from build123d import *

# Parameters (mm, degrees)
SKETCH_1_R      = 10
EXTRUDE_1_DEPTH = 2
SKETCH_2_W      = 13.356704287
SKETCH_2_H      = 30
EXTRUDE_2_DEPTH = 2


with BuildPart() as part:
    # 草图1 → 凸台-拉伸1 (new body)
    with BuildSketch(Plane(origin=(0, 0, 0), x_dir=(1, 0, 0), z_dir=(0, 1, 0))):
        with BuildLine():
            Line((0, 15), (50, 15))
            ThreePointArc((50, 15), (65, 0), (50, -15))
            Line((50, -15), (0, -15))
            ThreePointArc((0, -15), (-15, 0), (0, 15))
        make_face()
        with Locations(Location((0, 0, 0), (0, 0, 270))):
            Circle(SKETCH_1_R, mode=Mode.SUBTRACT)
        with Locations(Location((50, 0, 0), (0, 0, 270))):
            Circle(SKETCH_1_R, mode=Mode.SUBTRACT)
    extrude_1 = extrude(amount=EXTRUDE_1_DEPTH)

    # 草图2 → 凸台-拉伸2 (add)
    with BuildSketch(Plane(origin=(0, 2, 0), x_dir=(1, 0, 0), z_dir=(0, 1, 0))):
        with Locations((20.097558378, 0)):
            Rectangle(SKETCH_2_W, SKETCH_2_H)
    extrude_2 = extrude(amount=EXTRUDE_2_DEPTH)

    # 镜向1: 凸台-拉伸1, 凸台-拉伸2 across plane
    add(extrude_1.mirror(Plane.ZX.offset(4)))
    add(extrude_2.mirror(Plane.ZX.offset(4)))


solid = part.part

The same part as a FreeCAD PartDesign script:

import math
import FreeCAD as App
import Part
import Sketcher
from FreeCAD import Vector
Q = App.Units.Quantity


def add_polygon(sketch, points):
    """Adds a closed chain of lines whose ends are joined by coincident constraints."""
    first, n = sketch.GeometryCount, len(points)
    for a, b in zip(points, points[1:] + points[:1]):
        sketch.addGeometry(Part.LineSegment(App.Vector(*a, 0), App.Vector(*b, 0)), False)
    for i in range(n):
        sketch.addConstraint(Sketcher.Constraint("Coincident", first + i, 2, first + (i + 1) % n, 1))

doc = App.newDocument("Part")
params = doc.addObject("Spreadsheet::Sheet", "Params")
for row, (alias, value) in enumerate([
    ("sketch1_diameter", "20 mm"),
    ("sketch1_radius", "15 mm"),
    ("sketch1_width", "50 mm"),
    ("pad1_length", "2 mm"),
    ("sketch2_height", "30 mm"),
    ("pad2_length", "2 mm"),
], start=1):
    params.set(f"A{row}", alias)
    params.set(f"B{row}", "=" + value)
    params.setAlias(f"B{row}", alias)

body = doc.addObject("PartDesign::Body", "Body")

sketch1 = body.newObject("Sketcher::SketchObject", "Sketch")
sketch1.AttachmentSupport = (doc.getObject("XZ_Plane"), [""])
sketch1.MapMode = "FlatFace"
sketch1.addGeometry(Part.LineSegment(Vector(50, -15, 0), Vector(0, -15, 0)), False)
sketch1.addGeometry(Part.ArcOfCircle(Part.Circle(Vector(0, 0, 0), Vector(0, 0, 1), 15), math.radians(90), math.radians(270)), False)
sketch1.addGeometry(Part.LineSegment(Vector(0, 15, 0), Vector(50, 15, 0)), False)
sketch1.addGeometry(Part.ArcOfCircle(Part.Circle(Vector(50, 0, 0), Vector(0, 0, 1), 15), math.radians(-90), math.radians(90)), False)
sketch1.addGeometry(Part.Circle(Vector(50, 0, 0), Vector(0, 0, 1), 10), False)
sketch1.addGeometry(Part.Circle(Vector(0, 0, 0), Vector(0, 0, 1), 10), False)
sketch1.addConstraint(Sketcher.Constraint("Tangent", 0, 2, 1, 2))
sketch1.addConstraint(Sketcher.Constraint("Tangent", 1, 1, 2, 1))
sketch1.addConstraint(Sketcher.Constraint("Tangent", 2, 2, 3, 2))
sketch1.addConstraint(Sketcher.Constraint("Tangent", 3, 1, 0, 1))
sketch1.addConstraint(Sketcher.Constraint("Horizontal", 0))
sketch1.addConstraint(Sketcher.Constraint("Horizontal", 2))
sketch1.addConstraint(Sketcher.Constraint("Coincident", 1, 3, -1, 1))
sketch1.addConstraint(Sketcher.Constraint("Coincident", 5, 3, -1, 1))
sketch1.addConstraint(Sketcher.Constraint("Coincident", 4, 3, 3, 3))
sketch1.addConstraint(Sketcher.Constraint("Equal", 4, 5))
sketch1.addConstraint(Sketcher.Constraint("Diameter", 4, Q("20 mm")))
sketch1.addConstraint(Sketcher.Constraint("Radius", 1, Q("15 mm")))
sketch1.addConstraint(Sketcher.Constraint("DistanceX", 0, 2, 0, 1, Q("50 mm")))
sketch1.setExpression("Constraints[10]", "Params.sketch1_diameter")
sketch1.setExpression("Constraints[11]", "Params.sketch1_radius")
sketch1.setExpression("Constraints[12]", "Params.sketch1_width")
pad1 = body.newObject("PartDesign::Pad", "Pad")
pad1.Profile = sketch1
pad1.setExpression("Length", "Params.pad1_length")
pad1.Reversed = True

sketch2 = body.newObject("Sketcher::SketchObject", "Sketch001")
sketch2.AttachmentSupport = (doc.getObject("XZ_Plane"), [""])
sketch2.MapMode = "FlatFace"
sketch2.AttachmentOffset = App.Placement(Vector(0, 0, -2), App.Rotation())
add_polygon(sketch2, [(13.419206, -15), (13.419206, 15), (26.775911, 15), (26.775911, -15)])
sketch2.addConstraint(Sketcher.Constraint("Vertical", 0))
sketch2.addConstraint(Sketcher.Constraint("Horizontal", 1))
sketch2.addConstraint(Sketcher.Constraint("Vertical", 2))
sketch2.addConstraint(Sketcher.Constraint("Horizontal", 3))
sketch2.addConstraint(Sketcher.Constraint("DistanceY", 0, 1, 0, 2, Q("30 mm")))
sketch2.addConstraint(Sketcher.Constraint("DistanceY", -1, 1, 0, 2, Q("15 mm")))
sketch2.addConstraint(Sketcher.Constraint("DistanceX", 1, 1, 1, 2, Q("13.356704 mm")))
sketch2.addConstraint(Sketcher.Constraint("DistanceX", -1, 1, 1, 2, Q("26.775911 mm")))
sketch2.setExpression("Constraints[8]", "Params.sketch2_height")
pad2 = body.newObject("PartDesign::Pad", "Pad001")
pad2.Profile = sketch2
pad2.setExpression("Length", "Params.pad2_length")
pad2.Reversed = True
doc.recompute()

datumplane = body.newObject("PartDesign::Plane", "DatumPlane")
datumplane.AttachmentSupport = (doc.getObject("XZ_Plane"), [""])
datumplane.MapMode = "FlatFace"
datumplane.AttachmentOffset = App.Placement(Vector(0, 0, -4), App.Rotation())
mirrored = body.newObject("PartDesign::Mirrored", "Mirrored")
mirrored.Originals = [pad1, pad2]
mirrored.MirrorPlane = (datumplane, [""])
body.Tip = mirrored

doc.recompute()
